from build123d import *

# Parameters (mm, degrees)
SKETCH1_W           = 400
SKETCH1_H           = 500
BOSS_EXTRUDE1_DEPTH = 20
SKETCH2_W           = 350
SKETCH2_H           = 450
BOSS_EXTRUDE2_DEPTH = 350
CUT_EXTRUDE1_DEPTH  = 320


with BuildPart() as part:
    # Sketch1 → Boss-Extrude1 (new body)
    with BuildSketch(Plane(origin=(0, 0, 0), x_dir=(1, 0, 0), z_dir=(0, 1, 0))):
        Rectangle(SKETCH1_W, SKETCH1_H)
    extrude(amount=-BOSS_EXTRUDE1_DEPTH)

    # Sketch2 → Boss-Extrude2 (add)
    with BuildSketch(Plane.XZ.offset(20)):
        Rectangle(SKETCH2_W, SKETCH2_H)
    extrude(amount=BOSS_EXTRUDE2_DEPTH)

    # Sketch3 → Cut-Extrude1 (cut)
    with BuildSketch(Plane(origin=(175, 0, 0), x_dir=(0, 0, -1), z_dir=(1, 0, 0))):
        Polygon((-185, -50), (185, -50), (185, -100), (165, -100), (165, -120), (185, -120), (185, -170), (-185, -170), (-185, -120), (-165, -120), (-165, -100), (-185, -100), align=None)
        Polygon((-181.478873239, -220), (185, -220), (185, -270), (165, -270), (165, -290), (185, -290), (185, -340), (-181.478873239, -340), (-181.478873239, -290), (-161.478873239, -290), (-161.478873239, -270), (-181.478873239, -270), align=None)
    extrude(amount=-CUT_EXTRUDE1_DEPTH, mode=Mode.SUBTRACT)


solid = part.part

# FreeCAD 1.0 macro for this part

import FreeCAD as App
import Part
import Sketcher

doc = App.newDocument("Part")
body = doc.addObject("PartDesign::Body", "Body")

# Sketch on XZ plane
sketch1 = body.newObject("Sketcher::SketchObject", "Sketch")
sketch1.AttachmentSupport = (doc.getObject("XZ_Plane"), [""])
sketch1.MapMode = "FlatFace"
sketch1.addGeometry([
    Part.LineSegment(App.Vector(-200, -250, 0), App.Vector(-200, 250, 0)),
    Part.LineSegment(App.Vector(-200, 250, 0), App.Vector(200, 250, 0)),
    Part.LineSegment(App.Vector(200, 250, 0), App.Vector(200, -250, 0)),
    Part.LineSegment(App.Vector(200, -250, 0), App.Vector(-200, -250, 0)),
], False)
sketch1.addConstraint([
    Sketcher.Constraint("Coincident", 0, 2, 1, 1),
    Sketcher.Constraint("Coincident", 1, 2, 2, 1),
    Sketcher.Constraint("Coincident", 2, 2, 3, 1),
    Sketcher.Constraint("Coincident", 3, 2, 0, 1),
    Sketcher.Constraint("Vertical", 0),
    Sketcher.Constraint("Horizontal", 1),
    Sketcher.Constraint("Vertical", 2),
    Sketcher.Constraint("Horizontal", 3),
    Sketcher.Constraint("Symmetric", 0, 2, 2, 2, -1, 1),
    Sketcher.Constraint("DistanceX", 1, 1, 1, 2, 400.0),
    Sketcher.Constraint("DistanceY", 0, 1, 0, 2, 500.0),
])
pad1 = body.newObject("PartDesign::Pad", "Pad")
pad1.Profile = sketch1
pad1.Length = 20

# Sketch on XZ plane
sketch2 = body.newObject("Sketcher::SketchObject", "Sketch001")
sketch2.AttachmentSupport = (doc.getObject("XZ_Plane"), [""])
sketch2.MapMode = "FlatFace"
sketch2.AttachmentOffset = App.Placement(App.Vector(0, 0, 20), App.Rotation())
sketch2.addGeometry([
    Part.LineSegment(App.Vector(-175, 225, 0), App.Vector(-175, -225, 0)),
    Part.LineSegment(App.Vector(-175, -225, 0), App.Vector(175, -225, 0)),
    Part.LineSegment(App.Vector(175, -225, 0), App.Vector(175, 225, 0)),
    Part.LineSegment(App.Vector(175, 225, 0), App.Vector(-175, 225, 0)),
], False)
sketch2.addConstraint([
    Sketcher.Constraint("Coincident", 0, 2, 1, 1),
    Sketcher.Constraint("Coincident", 1, 2, 2, 1),
    Sketcher.Constraint("Coincident", 2, 2, 3, 1),
    Sketcher.Constraint("Coincident", 3, 2, 0, 1),
    Sketcher.Constraint("Vertical", 0),
    Sketcher.Constraint("Horizontal", 1),
    Sketcher.Constraint("Vertical", 2),
    Sketcher.Constraint("Horizontal", 3),
    Sketcher.Constraint("Symmetric", 0, 2, 2, 2, -1, 1),
    Sketcher.Constraint("DistanceX", 1, 1, 1, 2, 350.0),
    Sketcher.Constraint("DistanceY", 0, 2, 0, 1, 450.0),
])
pad2 = body.newObject("PartDesign::Pad", "Pad001")
pad2.Profile = sketch2
pad2.Length = 350

# Sketch on YZ plane
sketch3 = body.newObject("Sketcher::SketchObject", "Sketch002")
sketch3.AttachmentSupport = (doc.getObject("YZ_Plane"), [""])
sketch3.MapMode = "FlatFace"
sketch3.AttachmentOffset = App.Placement(App.Vector(0, 0, 175), App.Rotation())
sketch3.addGeometry([
    Part.LineSegment(App.Vector(-50, -185, 0), App.Vector(-50, 185, 0)),  # 0
    Part.LineSegment(App.Vector(-50, 185, 0), App.Vector(-100, 185, 0)),  # 1
    Part.LineSegment(App.Vector(-100, 185, 0), App.Vector(-100, 165, 0)),  # 2
    Part.LineSegment(App.Vector(-100, 165, 0), App.Vector(-120, 165, 0)),  # 3
    Part.LineSegment(App.Vector(-120, 165, 0), App.Vector(-120, 185, 0)),  # 4
    Part.LineSegment(App.Vector(-120, 185, 0), App.Vector(-170, 185, 0)),  # 5
    Part.LineSegment(App.Vector(-170, 185, 0), App.Vector(-170, -185, 0)),  # 6
    Part.LineSegment(App.Vector(-170, -185, 0), App.Vector(-120, -185, 0)),  # 7
    Part.LineSegment(App.Vector(-120, -185, 0), App.Vector(-120, -165, 0)),  # 8
    Part.LineSegment(App.Vector(-120, -165, 0), App.Vector(-100, -165, 0)),  # 9
    Part.LineSegment(App.Vector(-100, -165, 0), App.Vector(-100, -185, 0)),  # 10
    Part.LineSegment(App.Vector(-100, -185, 0), App.Vector(-50, -185, 0)),  # 11
    Part.LineSegment(App.Vector(-220, -185, 0), App.Vector(-220, 181.478873, 0)),  # 12
    Part.LineSegment(App.Vector(-220, 181.478873, 0), App.Vector(-270, 181.478873, 0)),  # 13
    Part.LineSegment(App.Vector(-270, 181.478873, 0), App.Vector(-270, 161.478873, 0)),  # 14
    Part.LineSegment(App.Vector(-270, 161.478873, 0), App.Vector(-290, 161.478873, 0)),  # 15
    Part.LineSegment(App.Vector(-290, 161.478873, 0), App.Vector(-290, 181.478873, 0)),  # 16
    Part.LineSegment(App.Vector(-290, 181.478873, 0), App.Vector(-340, 181.478873, 0)),  # 17
    Part.LineSegment(App.Vector(-340, 181.478873, 0), App.Vector(-340, -185, 0)),  # 18
    Part.LineSegment(App.Vector(-340, -185, 0), App.Vector(-290, -185, 0)),  # 19
    Part.LineSegment(App.Vector(-290, -185, 0), App.Vector(-290, -165, 0)),  # 20
    Part.LineSegment(App.Vector(-290, -165, 0), App.Vector(-270, -165, 0)),  # 21
    Part.LineSegment(App.Vector(-270, -165, 0), App.Vector(-270, -185, 0)),  # 22
    Part.LineSegment(App.Vector(-270, -185, 0), App.Vector(-220, -185, 0)),  # 23
], False)
sketch3.addConstraint([
    Sketcher.Constraint("Coincident", 0, 2, 1, 1),
    Sketcher.Constraint("Coincident", 1, 2, 2, 1),
    Sketcher.Constraint("Coincident", 2, 2, 3, 1),
    Sketcher.Constraint("Coincident", 3, 2, 4, 1),
    Sketcher.Constraint("Coincident", 4, 2, 5, 1),
    Sketcher.Constraint("Coincident", 5, 2, 6, 1),
    Sketcher.Constraint("Coincident", 6, 2, 7, 1),
    Sketcher.Constraint("Coincident", 7, 2, 8, 1),
    Sketcher.Constraint("Coincident", 8, 2, 9, 1),
    Sketcher.Constraint("Coincident", 9, 2, 10, 1),
    Sketcher.Constraint("Coincident", 10, 2, 11, 1),
    Sketcher.Constraint("Coincident", 11, 2, 0, 1),
    Sketcher.Constraint("Coincident", 12, 2, 13, 1),
    Sketcher.Constraint("Coincident", 13, 2, 14, 1),
    Sketcher.Constraint("Coincident", 14, 2, 15, 1),
    Sketcher.Constraint("Coincident", 15, 2, 16, 1),
    Sketcher.Constraint("Coincident", 16, 2, 17, 1),
    Sketcher.Constraint("Coincident", 17, 2, 18, 1),
    Sketcher.Constraint("Coincident", 18, 2, 19, 1),
    Sketcher.Constraint("Coincident", 19, 2, 20, 1),
    Sketcher.Constraint("Coincident", 20, 2, 21, 1),
    Sketcher.Constraint("Coincident", 21, 2, 22, 1),
    Sketcher.Constraint("Coincident", 22, 2, 23, 1),
    Sketcher.Constraint("Coincident", 23, 2, 12, 1),
    Sketcher.Constraint("Vertical", 0),
    Sketcher.Constraint("Horizontal", 1),
    Sketcher.Constraint("Vertical", 2),
    Sketcher.Constraint("Horizontal", 3),
    Sketcher.Constraint("Vertical", 4),
    Sketcher.Constraint("Horizontal", 5),
    Sketcher.Constraint("Vertical", 6),
    Sketcher.Constraint("Horizontal", 7),
    Sketcher.Constraint("Vertical", 8),
    Sketcher.Constraint("Horizontal", 9),
    Sketcher.Constraint("Vertical", 10),
    Sketcher.Constraint("Horizontal", 11),
    Sketcher.Constraint("Vertical", 12),
    Sketcher.Constraint("Horizontal", 13),
    Sketcher.Constraint("Vertical", 14),
    Sketcher.Constraint("Horizontal", 15),
    Sketcher.Constraint("Vertical", 16),
    Sketcher.Constraint("Horizontal", 17),
    Sketcher.Constraint("Vertical", 18),
    Sketcher.Constraint("Horizontal", 19),
    Sketcher.Constraint("Vertical", 20),
    Sketcher.Constraint("Horizontal", 21),
    Sketcher.Constraint("Vertical", 22),
    Sketcher.Constraint("Horizontal", 23),
    Sketcher.Constraint("Symmetric", 4, 2, 7, 2, -1),
    Sketcher.Constraint("Symmetric", 2, 2, 9, 2, -1),
    Sketcher.Constraint("Horizontal", 1, 2, 4, 2),
    Sketcher.Constraint("Horizontal", 7, 2, 10, 2),
    Sketcher.Constraint("Horizontal", 13, 2, 16, 2),
    Sketcher.Constraint("Horizontal", 11, 2, 18, 2),
    Sketcher.Constraint("Horizontal", 9, 2, 20, 2),
    Sketcher.Constraint("Horizontal", 19, 2, 22, 2),
    Sketcher.Constraint("Vertical", 16, 2, 19, 2),
    Sketcher.Constraint("Vertical", 14, 2, 21, 2),
    Sketcher.Constraint("Equal", 1, 5),
    Sketcher.Constraint("Equal", 11, 13),
    Sketcher.Constraint("Equal", 9, 15),
    Sketcher.Constraint("Equal", 13, 17),
    Sketcher.Constraint("Equal", 21, 2),
    Sketcher.Constraint("Equal", 10, 14),
    Sketcher.Constraint("DistanceX", 1, 2, 1, 1, 50.0),
    Sketcher.Constraint("DistanceX", 3, 2, 3, 1, 20.0),
    Sketcher.Constraint("DistanceY", 0, 1, 0, 2, 370.0),
    Sketcher.Constraint("DistanceX", 0, 2, -1, 1, 50.0),
    Sketcher.Constraint("DistanceX", 12, 2, -1, 1, 220.0),
    Sketcher.Constraint("DistanceY", 12, 1, 12, 2, 366.478873),
])
pocket1 = body.newObject("PartDesign::Pocket", "Pocket")
pocket1.Profile = sketch3
pocket1.Length = 320

doc.recompute()
